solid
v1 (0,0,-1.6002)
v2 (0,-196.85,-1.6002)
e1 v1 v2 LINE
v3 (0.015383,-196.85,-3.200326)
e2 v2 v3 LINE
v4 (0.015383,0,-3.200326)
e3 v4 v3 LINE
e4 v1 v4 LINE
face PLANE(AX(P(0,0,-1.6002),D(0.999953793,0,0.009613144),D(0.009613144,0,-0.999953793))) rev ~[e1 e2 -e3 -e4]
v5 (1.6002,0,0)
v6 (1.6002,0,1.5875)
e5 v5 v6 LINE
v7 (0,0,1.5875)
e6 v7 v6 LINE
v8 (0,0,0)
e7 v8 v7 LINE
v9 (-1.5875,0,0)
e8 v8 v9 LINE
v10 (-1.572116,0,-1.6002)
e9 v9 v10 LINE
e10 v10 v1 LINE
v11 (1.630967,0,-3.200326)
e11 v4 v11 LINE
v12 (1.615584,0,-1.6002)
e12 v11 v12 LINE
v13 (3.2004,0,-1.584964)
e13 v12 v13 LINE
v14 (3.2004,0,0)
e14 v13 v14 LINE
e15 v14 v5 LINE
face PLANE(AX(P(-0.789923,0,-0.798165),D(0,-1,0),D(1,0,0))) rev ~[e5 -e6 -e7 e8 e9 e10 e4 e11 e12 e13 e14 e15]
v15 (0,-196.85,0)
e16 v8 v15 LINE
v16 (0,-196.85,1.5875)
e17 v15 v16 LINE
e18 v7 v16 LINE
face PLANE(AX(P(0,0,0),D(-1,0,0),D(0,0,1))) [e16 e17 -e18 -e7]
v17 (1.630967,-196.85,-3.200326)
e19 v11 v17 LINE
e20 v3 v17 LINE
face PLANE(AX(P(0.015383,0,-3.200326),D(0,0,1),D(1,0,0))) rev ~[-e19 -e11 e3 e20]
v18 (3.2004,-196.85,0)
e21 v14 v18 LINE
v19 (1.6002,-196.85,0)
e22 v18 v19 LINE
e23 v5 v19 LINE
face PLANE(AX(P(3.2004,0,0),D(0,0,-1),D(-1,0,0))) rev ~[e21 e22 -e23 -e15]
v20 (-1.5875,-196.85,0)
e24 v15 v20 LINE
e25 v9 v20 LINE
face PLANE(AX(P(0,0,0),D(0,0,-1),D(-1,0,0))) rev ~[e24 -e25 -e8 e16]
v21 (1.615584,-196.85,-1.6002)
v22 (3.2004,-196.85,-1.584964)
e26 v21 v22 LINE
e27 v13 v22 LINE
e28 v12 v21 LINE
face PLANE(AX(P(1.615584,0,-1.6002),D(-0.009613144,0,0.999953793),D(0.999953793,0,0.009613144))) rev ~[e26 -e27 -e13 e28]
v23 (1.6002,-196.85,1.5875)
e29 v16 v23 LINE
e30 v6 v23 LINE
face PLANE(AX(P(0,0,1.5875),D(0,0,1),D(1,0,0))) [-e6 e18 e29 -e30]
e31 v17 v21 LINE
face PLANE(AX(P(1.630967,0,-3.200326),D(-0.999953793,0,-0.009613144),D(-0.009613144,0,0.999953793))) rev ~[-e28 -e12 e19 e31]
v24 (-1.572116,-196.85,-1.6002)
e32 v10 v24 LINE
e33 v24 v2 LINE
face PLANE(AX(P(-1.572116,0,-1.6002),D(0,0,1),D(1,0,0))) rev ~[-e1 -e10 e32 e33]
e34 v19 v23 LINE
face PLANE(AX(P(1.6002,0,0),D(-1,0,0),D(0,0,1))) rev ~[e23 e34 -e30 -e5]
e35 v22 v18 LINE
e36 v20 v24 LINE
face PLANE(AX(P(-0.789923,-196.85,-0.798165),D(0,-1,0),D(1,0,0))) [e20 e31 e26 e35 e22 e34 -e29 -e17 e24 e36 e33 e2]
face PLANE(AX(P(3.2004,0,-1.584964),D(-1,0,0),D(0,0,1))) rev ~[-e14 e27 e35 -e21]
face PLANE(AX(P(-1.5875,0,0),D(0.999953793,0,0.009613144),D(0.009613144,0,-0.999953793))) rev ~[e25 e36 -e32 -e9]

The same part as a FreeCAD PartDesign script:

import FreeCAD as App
import Part
import Sketcher
from FreeCAD import Vector
Q = App.Units.Quantity


def add_polygon(sketch, points):
    """Adds a closed chain of lines whose ends are joined by coincident constraints."""
    first, n = sketch.GeometryCount, len(points)
    for a, b in zip(points, points[1:] + points[:1]):
        sketch.addGeometry(Part.LineSegment(App.Vector(*a, 0), App.Vector(*b, 0)), False)
    for i in range(n):
        sketch.addConstraint(Sketcher.Constraint("Coincident", first + i, 2, first + (i + 1) % n, 1))

doc = App.newDocument("Part")
body = doc.addObject("PartDesign::Body", "Body")

sketch1 = body.newObject("Sketcher::SketchObject", "Sketch")
sketch1.AttachmentSupport = (doc.getObject("XZ_Plane"), [""])
sketch1.MapMode = "FlatFace"
add_polygon(sketch1, [(0, 0), (-1.6, 0), (-1.6, -1.6), (0, -1.6), (0, -3.2), (1.6, -3.2), (1.6, -1.6), (3.2, -1.6), (3.2, 0), (1.6, 0), (1.6, 1.6), (0, 1.6)])
sketch1.addConstraint([
    Sketcher.Constraint("Horizontal", 0),
    Sketcher.Constraint("Horizontal", 2),
    Sketcher.Constraint("Horizontal", 4),
    Sketcher.Constraint("Vertical", 7),
    Sketcher.Constraint("Horizontal", 8),
    Sketcher.Constraint("Vertical", 9),
    Sketcher.Constraint("Horizontal", 10),
    Sketcher.Constraint("Vertical", 11),
    Sketcher.Constraint("Coincident", 11, 2, -1, 1),
    Sketcher.Constraint("PointOnObject", 2, 2, -2),
    Sketcher.Constraint("PointOnObject", 7, 2, -1),
    Sketcher.Constraint("Parallel", 1, 3),
    Sketcher.Constraint("Parallel", 3, 5),
    Sketcher.Constraint("Perpendicular", 5, 6),
    Sketcher.Constraint("Horizontal", 2, 2, 5, 2),
    Sketcher.Constraint("Equal", 8, 10),
    Sketcher.Constraint("Equal", 0, 9),
    Sketcher.Constraint("DistanceX", 0, 2, 0, 1, Q("0.0625 in")),
    Sketcher.Constraint("DistanceX", 8, 2, 8, 1, Q("0.063 in")),
    Sketcher.Constraint("Distance", 3, Q("0.063 in")),
    Sketcher.Constraint("DistanceY", 7, 1, 7, 2, Q("0.0624002 in")),
    Sketcher.Constraint("DistanceY", 1, 2, -1, 1, Q("0.063 in")),
    Sketcher.Constraint("DistanceX", 3, 2, 5, 2, Q("0.063 in")),
])
pad1 = body.newObject("PartDesign::Pad", "Pad")
pad1.Profile = sketch1
pad1.Length = Q("7.75 in")

doc.recompute()
